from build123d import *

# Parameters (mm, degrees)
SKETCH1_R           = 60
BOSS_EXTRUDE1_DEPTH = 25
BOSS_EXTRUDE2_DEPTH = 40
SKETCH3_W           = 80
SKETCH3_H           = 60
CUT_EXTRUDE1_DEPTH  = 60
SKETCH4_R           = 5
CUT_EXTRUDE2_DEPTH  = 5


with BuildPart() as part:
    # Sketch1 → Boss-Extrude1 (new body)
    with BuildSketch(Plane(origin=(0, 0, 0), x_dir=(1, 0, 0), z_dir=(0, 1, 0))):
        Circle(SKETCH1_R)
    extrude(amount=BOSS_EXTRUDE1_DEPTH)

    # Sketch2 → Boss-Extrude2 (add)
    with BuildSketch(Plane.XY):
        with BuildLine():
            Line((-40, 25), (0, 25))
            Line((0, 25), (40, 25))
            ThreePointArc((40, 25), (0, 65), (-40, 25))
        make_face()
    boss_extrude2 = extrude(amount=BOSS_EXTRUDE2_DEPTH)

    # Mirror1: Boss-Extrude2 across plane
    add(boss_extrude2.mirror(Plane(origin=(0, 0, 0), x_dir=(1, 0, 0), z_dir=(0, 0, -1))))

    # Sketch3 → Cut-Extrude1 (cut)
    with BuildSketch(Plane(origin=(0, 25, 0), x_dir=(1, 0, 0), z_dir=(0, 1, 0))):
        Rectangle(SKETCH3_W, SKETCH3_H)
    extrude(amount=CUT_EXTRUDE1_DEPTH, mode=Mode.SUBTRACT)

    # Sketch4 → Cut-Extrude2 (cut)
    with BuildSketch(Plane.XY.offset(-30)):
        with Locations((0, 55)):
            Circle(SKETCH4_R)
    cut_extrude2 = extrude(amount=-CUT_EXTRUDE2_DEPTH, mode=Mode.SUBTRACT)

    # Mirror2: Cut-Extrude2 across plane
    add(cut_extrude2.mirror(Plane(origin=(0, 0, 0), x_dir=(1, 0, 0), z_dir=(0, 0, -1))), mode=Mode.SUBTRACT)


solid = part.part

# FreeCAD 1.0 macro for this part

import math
import FreeCAD as App
import Part
import Sketcher
from FreeCAD import Vector
Q = App.Units.Quantity


def add_polygon(sketch, points):
    """Adds a closed chain of lines whose ends are joined by coincident constraints."""
    first, n = sketch.GeometryCount, len(points)
    for a, b in zip(points, points[1:] + points[:1]):
        sketch.addGeometry(Part.LineSegment(App.Vector(*a, 0), App.Vector(*b, 0)), False)
    for i in range(n):
        sketch.addConstraint(Sketcher.Constraint("Coincident", first + i, 2, first + (i + 1) % n, 1))

doc = App.newDocument("Part")
params = doc.addObject("Spreadsheet::Sheet", "Params")
for row, (alias, value) in enumerate([
    ("sketch1_diameter", "120 mm"),
    ("pad1_length", "25 mm"),
    ("sketch2_radius", "40 mm"),
    ("pad2_length", "40 mm"),
    ("sketch3_width", "80 mm"),
    ("sketch3_height", "60 mm"),
    ("pocket1_length", "60 mm"),
    ("sketch4_diameter", "10 mm"),
    ("pocket2_length", "5 mm"),
], start=1):
    params.set(f"A{row}", alias)
    params.set(f"B{row}", "=" + value)
    params.setAlias(f"B{row}", alias)

body = doc.addObject("PartDesign::Body", "Body")

sketch1 = body.newObject("Sketcher::SketchObject", "Sketch")
sketch1.AttachmentSupport = (doc.getObject("XZ_Plane"), [""])
sketch1.MapMode = "FlatFace"
sketch1.addGeometry(Part.Circle(Vector(0, 0, 0), Vector(0, 0, 1), 60), False)
sketch1.addConstraint([
    Sketcher.Constraint("Coincident", 0, 3, -1, 1),
    Sketcher.Constraint("Diameter", 0, Q("120 mm")),
])
sketch1.setExpression("Constraints[1]", "Params.sketch1_diameter")
pad1 = body.newObject("PartDesign::Pad", "Pad")
pad1.Profile = sketch1
pad1.setExpression("Length", "Params.pad1_length")
pad1.Reversed = True

sketch2 = body.newObject("Sketcher::SketchObject", "Sketch001")
sketch2.AttachmentSupport = (doc.getObject("XY_Plane"), [""])
sketch2.MapMode = "FlatFace"
sketch2.addGeometry([
    Part.LineSegment(Vector(-40, 25, 0), Vector(40, 25, 0)),
    Part.ArcOfCircle(Part.Circle(Vector(0, 25, 0), Vector(0, 0, 1), 40), math.radians(0), math.radians(180)),
], False)
sketch2.addConstraint([
    Sketcher.Constraint("Coincident", 0, 1, 1, 2),
    Sketcher.Constraint("Coincident", 1, 1, 0, 2),
    Sketcher.Constraint("Horizontal", 0),
    Sketcher.Constraint("PointOnObject", 1, 3, -2),
    Sketcher.Constraint("Horizontal", 1, 3, 0, 1),
    Sketcher.Constraint("Radius", 1, Q("40 mm")),
    Sketcher.Constraint("DistanceY", -1, 1, 1, 3, Q("25 mm")),
])
sketch2.setExpression("Constraints[5]", "Params.sketch2_radius")
pad2 = body.newObject("PartDesign::Pad", "Pad001")
pad2.Profile = sketch2
pad2.setExpression("Length", "Params.pad2_length")
doc.recompute()

mirrored = body.newObject("PartDesign::Mirrored", "Mirrored")
mirrored.Originals = [pad2]
mirrored.MirrorPlane = (doc.getObject("XY_Plane"), [""])
body.Tip = mirrored

sketch3 = body.newObject("Sketcher::SketchObject", "Sketch002")
sketch3.AttachmentSupport = (doc.getObject("XZ_Plane"), [""])
sketch3.MapMode = "FlatFace"
sketch3.AttachmentOffset = App.Placement(Vector(0, 0, -25), App.Rotation())
add_polygon(sketch3, [(-40, -30), (-40, 30), (40, 30), (40, -30)])
sketch3.addConstraint([
    Sketcher.Constraint("Vertical", 0),
    Sketcher.Constraint("Horizontal", 1),
    Sketcher.Constraint("Vertical", 2),
    Sketcher.Constraint("Horizontal", 3),
    Sketcher.Constraint("Symmetric", 0, 2, 2, 2, -1, 1),
    Sketcher.Constraint("DistanceX", 1, 1, 1, 2, Q("80 mm")),
    Sketcher.Constraint("DistanceY", 0, 1, 0, 2, Q("60 mm")),
])
sketch3.setExpression("Constraints[9]", "Params.sketch3_width")
sketch3.setExpression("Constraints[10]", "Params.sketch3_height")
pocket1 = body.newObject("PartDesign::Pocket", "Pocket")
pocket1.Profile = sketch3
pocket1.setExpression("Length", "Params.pocket1_length")

sketch4 = body.newObject("Sketcher::SketchObject", "Sketch003")
sketch4.AttachmentSupport = (doc.getObject("XY_Plane"), [""])
sketch4.MapMode = "FlatFace"
sketch4.AttachmentOffset = App.Placement(Vector(0, 0, -30), App.Rotation())
sketch4.addGeometry(Part.Circle(Vector(0, 55, 0), Vector(0, 0, 1), 5), False)
sketch4.addConstraint([
    Sketcher.Constraint("PointOnObject", 0, 3, -2),
    Sketcher.Constraint("Diameter", 0, Q("10 mm")),
    Sketcher.Constraint("DistanceY", -1, 1, 0, 3, Q("55 mm")),
])
sketch4.setExpression("Constraints[1]", "Params.sketch4_diameter")
pocket2 = body.newObject("PartDesign::Pocket", "Pocket001")
pocket2.Profile = sketch4
pocket2.setExpression("Length", "Params.pocket2_length")
doc.recompute()

mirrored2 = body.newObject("PartDesign::Mirrored", "Mirrored001")
mirrored2.Originals = [pocket2]
mirrored2.MirrorPlane = (doc.getObject("XY_Plane"), [""])
body.Tip = mirrored2

doc.recompute()
